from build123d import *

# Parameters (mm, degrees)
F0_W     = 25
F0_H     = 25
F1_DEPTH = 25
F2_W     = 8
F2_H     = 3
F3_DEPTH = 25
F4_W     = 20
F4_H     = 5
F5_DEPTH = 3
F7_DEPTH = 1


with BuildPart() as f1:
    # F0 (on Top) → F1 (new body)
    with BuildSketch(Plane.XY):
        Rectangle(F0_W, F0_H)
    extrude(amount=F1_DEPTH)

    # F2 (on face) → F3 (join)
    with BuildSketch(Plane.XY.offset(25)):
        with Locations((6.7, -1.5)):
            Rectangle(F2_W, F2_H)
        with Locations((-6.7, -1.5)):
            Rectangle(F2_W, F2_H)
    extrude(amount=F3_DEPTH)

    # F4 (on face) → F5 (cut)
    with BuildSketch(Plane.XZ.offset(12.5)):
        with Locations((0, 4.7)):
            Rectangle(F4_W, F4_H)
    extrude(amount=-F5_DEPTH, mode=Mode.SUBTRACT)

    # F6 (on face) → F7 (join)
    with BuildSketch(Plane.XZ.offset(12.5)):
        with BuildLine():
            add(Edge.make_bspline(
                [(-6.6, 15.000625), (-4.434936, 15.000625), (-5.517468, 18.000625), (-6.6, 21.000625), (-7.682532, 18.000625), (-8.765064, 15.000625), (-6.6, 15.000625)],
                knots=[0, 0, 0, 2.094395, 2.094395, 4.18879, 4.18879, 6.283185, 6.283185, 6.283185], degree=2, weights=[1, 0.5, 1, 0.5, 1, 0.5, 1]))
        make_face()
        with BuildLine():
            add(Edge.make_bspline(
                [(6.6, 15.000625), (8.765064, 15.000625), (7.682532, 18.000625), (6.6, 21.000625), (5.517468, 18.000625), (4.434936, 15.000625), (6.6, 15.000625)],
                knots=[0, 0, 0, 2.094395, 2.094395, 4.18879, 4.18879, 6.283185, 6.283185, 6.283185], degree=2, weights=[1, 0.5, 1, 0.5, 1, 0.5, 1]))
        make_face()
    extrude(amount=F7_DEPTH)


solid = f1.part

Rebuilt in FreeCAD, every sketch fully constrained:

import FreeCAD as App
import Part
import Sketcher
Q = App.Units.Quantity


def add_polygon(sketch, points):
    """Adds a closed chain of lines whose ends are joined by coincident constraints."""
    first, n = sketch.GeometryCount, len(points)
    for a, b in zip(points, points[1:] + points[:1]):
        sketch.addGeometry(Part.LineSegment(App.Vector(*a, 0), App.Vector(*b, 0)), False)
    for i in range(n):
        sketch.addConstraint(Sketcher.Constraint("Coincident", first + i, 2, first + (i + 1) % n, 1))

doc = App.newDocument("Part")
body = doc.addObject("PartDesign::Body", "Body")

sketch1 = body.newObject("Sketcher::SketchObject", "Sketch")
sketch1.AttachmentSupport = (doc.getObject("XY_Plane"), [""])
sketch1.MapMode = "FlatFace"
add_polygon(sketch1, [(-12, 12), (-12, -12), (12, -12), (12, 12)])
sketch1.addConstraint([
    Sketcher.Constraint("Vertical", 0),
    Sketcher.Constraint("Horizontal", 1),
    Sketcher.Constraint("Vertical", 2),
    Sketcher.Constraint("Horizontal", 3),
    Sketcher.Constraint("Symmetric", 0, 2, 2, 2, -1, 1),
    Sketcher.Constraint("Equal", 3, 0),
    Sketcher.Constraint("DistanceX", 1, 1, 1, 2, Q("25 mm")),
])
pad1 = body.newObject("PartDesign::Pad", "Pad")
pad1.Profile = sketch1
pad1.Length = 25

sketch2 = body.newObject("Sketcher::SketchObject", "Sketch001")
sketch2.AttachmentSupport = (doc.getObject("XY_Plane"), [""])
sketch2.MapMode = "FlatFace"
sketch2.AttachmentOffset = App.Placement(App.Vector(0, 0, 25), App.Rotation())
add_polygon(sketch2, [(2.7, 0), (2.7, -3), (10.7, -3), (10.7, 0)])
add_polygon(sketch2, [(-10.7, 0), (-10.7, -3), (-2.7, -3), (-2.7, 0)])
sketch2.addConstraint([
    Sketcher.Constraint("Vertical", 0),
    Sketcher.Constraint("Horizontal", 1),
    Sketcher.Constraint("Vertical", 2),
    Sketcher.Constraint("Horizontal", 3),
    Sketcher.Constraint("Vertical", 4),
    Sketcher.Constraint("Horizontal", 5),
    Sketcher.Constraint("Vertical", 6),
    Sketcher.Constraint("Horizontal", 7),
    Sketcher.Constraint("Symmetric", 3, 2, 6, 2, -1, 1),
    Sketcher.Constraint("Symmetric", 1, 2, 4, 2, -2),
    Sketcher.Constraint("PointOnObject", 2, 2, -1),
    Sketcher.Constraint("DistanceX", 1, 1, 1, 2, Q("8 mm")),
    Sketcher.Constraint("DistanceY", 0, 2, 0, 1, Q("3 mm")),
    Sketcher.Constraint("DistanceX", -1, 1, 0, 2, Q("2.7 mm")),
])
pad2 = body.newObject("PartDesign::Pad", "Pad001")
pad2.Profile = sketch2
pad2.Length = 25

sketch3 = body.newObject("Sketcher::SketchObject", "Sketch002")
sketch3.AttachmentSupport = (doc.getObject("XZ_Plane"), [""])
sketch3.MapMode = "FlatFace"
sketch3.AttachmentOffset = App.Placement(App.Vector(0, 0, 12.5), App.Rotation())
add_polygon(sketch3, [(-10, 7), (-10, 2), (10, 2), (10, 7)])
sketch3.addConstraint([
    Sketcher.Constraint("Vertical", 0),
    Sketcher.Constraint("Horizontal", 1),
    Sketcher.Constraint("Vertical", 2),
    Sketcher.Constraint("Horizontal", 3),
    Sketcher.Constraint("DistanceX", 1, 1, 1, 2, Q("20 mm")),
    Sketcher.Constraint("DistanceY", 0, 2, 0, 1, Q("5 mm")),
    Sketcher.Constraint("DistanceX", 0, 2, -1, 1, Q("10 mm")),
    Sketcher.Constraint("DistanceY", -1, 1, 0, 2, Q("2.2 mm")),
])
pocket1 = body.newObject("PartDesign::Pocket", "Pocket")
pocket1.Profile = sketch3
pocket1.Length = 3

sketch4 = body.newObject("Sketcher::SketchObject", "Sketch003")
sketch4.AttachmentSupport = (doc.getObject("XZ_Plane"), [""])
sketch4.MapMode = "FlatFace"
sketch4.AttachmentOffset = App.Placement(App.Vector(0, 0, 12.5), App.Rotation())
sketch4.addGeometry([
    Part.BSplineCurve([App.Vector(-6.6, 15.000625, 0), App.Vector(-4.434936, 15.000625, 0), App.Vector(-5.517468, 18.000625, 0), App.Vector(-6.6, 21.000625, 0), App.Vector(-7.682532, 18.000625, 0), App.Vector(-8.765064, 15.000625, 0), App.Vector(-6.6, 15.000625, 0)], [3, 2, 2, 3], [0, 2.094395, 4.18879, 6.283185], False, 2, [1, 0.5, 1, 0.5, 1, 0.5, 1], False),
    Part.BSplineCurve([App.Vector(6.6, 15.000625, 0), App.Vector(8.765064, 15.000625, 0), App.Vector(7.682532, 18.000625, 0), App.Vector(6.6, 21.000625, 0), App.Vector(5.517468, 18.000625, 0), App.Vector(4.434936, 15.000625, 0), App.Vector(6.6, 15.000625, 0)], [3, 2, 2, 3], [0, 2.094395, 4.18879, 6.283185], False, 2, [1, 0.5, 1, 0.5, 1, 0.5, 1], False),
], False)
sketch4.addConstraint([
    Sketcher.Constraint("Block", 0),
    Sketcher.Constraint("Block", 1),
])
pad3 = body.newObject("PartDesign::Pad", "Pad002")
pad3.Profile = sketch4
pad3.Length = 1

doc.recompute()
